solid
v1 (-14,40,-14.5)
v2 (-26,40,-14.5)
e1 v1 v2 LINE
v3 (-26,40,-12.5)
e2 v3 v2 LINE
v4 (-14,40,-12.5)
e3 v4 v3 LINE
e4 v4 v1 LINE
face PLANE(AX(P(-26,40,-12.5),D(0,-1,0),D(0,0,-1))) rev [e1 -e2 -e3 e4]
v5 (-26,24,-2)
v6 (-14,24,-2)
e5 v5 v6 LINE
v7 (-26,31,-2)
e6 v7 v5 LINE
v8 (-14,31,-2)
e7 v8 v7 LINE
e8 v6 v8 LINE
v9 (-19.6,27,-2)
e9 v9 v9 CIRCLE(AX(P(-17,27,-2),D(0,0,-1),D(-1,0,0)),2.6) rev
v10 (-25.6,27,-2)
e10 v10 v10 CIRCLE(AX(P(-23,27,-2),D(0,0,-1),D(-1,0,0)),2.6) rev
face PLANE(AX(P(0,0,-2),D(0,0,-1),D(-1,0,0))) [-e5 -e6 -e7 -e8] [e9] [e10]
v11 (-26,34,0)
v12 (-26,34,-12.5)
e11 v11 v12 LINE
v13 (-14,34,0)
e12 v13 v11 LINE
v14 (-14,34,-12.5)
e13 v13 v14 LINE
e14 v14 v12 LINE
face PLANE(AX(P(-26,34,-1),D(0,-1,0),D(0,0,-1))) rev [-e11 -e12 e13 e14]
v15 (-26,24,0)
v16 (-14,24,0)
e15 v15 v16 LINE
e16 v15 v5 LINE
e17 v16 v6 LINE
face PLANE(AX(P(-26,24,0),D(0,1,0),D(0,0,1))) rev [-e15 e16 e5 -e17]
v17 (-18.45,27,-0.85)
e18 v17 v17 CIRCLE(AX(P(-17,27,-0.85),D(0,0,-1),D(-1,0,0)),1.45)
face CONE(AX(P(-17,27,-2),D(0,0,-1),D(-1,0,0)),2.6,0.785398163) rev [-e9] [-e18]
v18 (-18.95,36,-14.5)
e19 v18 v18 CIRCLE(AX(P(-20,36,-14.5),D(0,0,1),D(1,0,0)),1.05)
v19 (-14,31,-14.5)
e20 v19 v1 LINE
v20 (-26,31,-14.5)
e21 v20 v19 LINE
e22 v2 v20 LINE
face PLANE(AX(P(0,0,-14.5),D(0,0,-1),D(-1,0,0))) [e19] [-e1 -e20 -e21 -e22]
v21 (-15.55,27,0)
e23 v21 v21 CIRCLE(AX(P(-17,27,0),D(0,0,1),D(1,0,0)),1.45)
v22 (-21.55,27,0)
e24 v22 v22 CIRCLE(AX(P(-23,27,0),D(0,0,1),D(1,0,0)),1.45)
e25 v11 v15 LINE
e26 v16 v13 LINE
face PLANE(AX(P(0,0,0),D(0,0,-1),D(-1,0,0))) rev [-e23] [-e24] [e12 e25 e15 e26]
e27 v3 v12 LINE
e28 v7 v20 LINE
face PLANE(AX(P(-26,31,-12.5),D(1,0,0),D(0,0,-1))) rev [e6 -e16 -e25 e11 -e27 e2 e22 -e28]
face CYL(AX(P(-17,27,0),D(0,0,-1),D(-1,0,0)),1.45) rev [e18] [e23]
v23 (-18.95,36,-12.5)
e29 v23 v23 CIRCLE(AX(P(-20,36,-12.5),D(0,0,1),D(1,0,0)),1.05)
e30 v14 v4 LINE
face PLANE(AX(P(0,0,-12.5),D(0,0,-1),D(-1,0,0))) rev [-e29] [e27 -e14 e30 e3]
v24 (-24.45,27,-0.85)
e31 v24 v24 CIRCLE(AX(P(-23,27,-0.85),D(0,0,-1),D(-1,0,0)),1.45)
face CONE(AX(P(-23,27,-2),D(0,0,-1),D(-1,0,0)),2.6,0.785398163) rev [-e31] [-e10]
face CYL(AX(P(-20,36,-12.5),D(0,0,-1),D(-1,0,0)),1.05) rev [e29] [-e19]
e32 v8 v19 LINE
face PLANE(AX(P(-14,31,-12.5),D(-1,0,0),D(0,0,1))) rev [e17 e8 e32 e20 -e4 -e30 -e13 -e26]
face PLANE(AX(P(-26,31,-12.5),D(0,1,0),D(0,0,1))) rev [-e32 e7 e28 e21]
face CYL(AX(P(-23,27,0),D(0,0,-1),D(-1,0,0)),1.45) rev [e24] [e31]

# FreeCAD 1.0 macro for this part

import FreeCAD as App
import Part
import Sketcher

V = App.Vector


def edges_at(feature, points):
    """Names of the edges that pass closest to the given points."""
    edges = feature.Shape.Edges
    near = lambda p: min(range(len(edges)), key=lambda i: edges[i].distToShape(Part.Vertex(*p))[0])
    return sorted({f"Edge{near(p) + 1}" for p in points})

doc = App.newDocument("Part")
body = doc.addObject("PartDesign::Body", "Body")

# Sketch on XY plane
sketch1 = body.newObject("Sketcher::SketchObject", "Sketch")
sketch1.AttachmentSupport = (doc.getObject("XY_Plane"), [""])
sketch1.MapMode = "FlatFace"
sketch1.AttachmentOffset = App.Placement(V(0, 0, -14.5), App.Rotation())
sketch1.addGeometry(Part.LineSegment(V(-26, 40, 0), V(-26, 31, 0)), False)
sketch1.addGeometry(Part.LineSegment(V(-26, 31, 0), V(-14, 31, 0)), False)
sketch1.addGeometry(Part.LineSegment(V(-14, 31, 0), V(-14, 40, 0)), False)
sketch1.addGeometry(Part.LineSegment(V(-14, 40, 0), V(-26, 40, 0)), False)
sketch1.addGeometry(Part.Circle(V(-20, 36, 0), V(0, 0, 1), 1.05), False)
sketch1.addConstraint(Sketcher.Constraint("Coincident", 0, 2, 1, 1))
sketch1.addConstraint(Sketcher.Constraint("Coincident", 1, 2, 2, 1))
sketch1.addConstraint(Sketcher.Constraint("Coincident", 2, 2, 3, 1))
sketch1.addConstraint(Sketcher.Constraint("Coincident", 3, 2, 0, 1))
sketch1.addConstraint(Sketcher.Constraint("Vertical", 0))
sketch1.addConstraint(Sketcher.Constraint("Horizontal", 1))
sketch1.addConstraint(Sketcher.Constraint("Vertical", 2))
sketch1.addConstraint(Sketcher.Constraint("Horizontal", 3))
sketch1.addConstraint(Sketcher.Constraint("Diameter", 4, 2.1))
sketch1.addConstraint(Sketcher.Constraint("DistanceX", 1, 1, 1, 2, 12.0))
sketch1.addConstraint(Sketcher.Constraint("DistanceY", 0, 2, 0, 1, 9.0))
sketch1.addConstraint(Sketcher.Constraint("DistanceX", 4, 3, -1, 1, 20.0))
sketch1.addConstraint(Sketcher.Constraint("DistanceY", -1, 1, 4, 3, 36.0))
sketch1.addConstraint(Sketcher.Constraint("DistanceX", 0, 2, -1, 1, 26.0))
sketch1.addConstraint(Sketcher.Constraint("DistanceY", -1, 1, 0, 2, 31.0))
pad1 = body.newObject("PartDesign::Pad", "Pad")
pad1.Profile = sketch1
pad1.Length = 2

# Sketch on XY plane
sketch2 = body.newObject("Sketcher::SketchObject", "Sketch001")
sketch2.AttachmentSupport = (doc.getObject("XY_Plane"), [""])
sketch2.MapMode = "FlatFace"
sketch2.AttachmentOffset = App.Placement(V(0, 0, -13.5), App.Rotation())
sketch2.addGeometry(Part.LineSegment(V(-26, 34, 0), V(-26, 31, 0)), False)
sketch2.addGeometry(Part.LineSegment(V(-26, 31, 0), V(-14, 31, 0)), False)
sketch2.addGeometry(Part.LineSegment(V(-14, 31, 0), V(-14, 34, 0)), False)
sketch2.addGeometry(Part.LineSegment(V(-14, 34, 0), V(-26, 34, 0)), False)
sketch2.addConstraint(Sketcher.Constraint("Coincident", 0, 2, 1, 1))
sketch2.addConstraint(Sketcher.Constraint("Coincident", 1, 2, 2, 1))
sketch2.addConstraint(Sketcher.Constraint("Coincident", 2, 2, 3, 1))
sketch2.addConstraint(Sketcher.Constraint("Coincident", 3, 2, 0, 1))
sketch2.addConstraint(Sketcher.Constraint("Vertical", 0))
sketch2.addConstraint(Sketcher.Constraint("Horizontal", 1))
sketch2.addConstraint(Sketcher.Constraint("Vertical", 2))
sketch2.addConstraint(Sketcher.Constraint("Horizontal", 3))
sketch2.addConstraint(Sketcher.Constraint("DistanceX", 1, 1, 1, 2, 12.0))
sketch2.addConstraint(Sketcher.Constraint("DistanceY", 0, 2, 0, 1, 3.0))
sketch2.addConstraint(Sketcher.Constraint("DistanceX", 0, 2, -1, 1, 26.0))
sketch2.addConstraint(Sketcher.Constraint("DistanceY", -1, 1, 0, 2, 31.0))
pad2 = body.newObject("PartDesign::Pad", "Pad001")
pad2.Profile = sketch2
pad2.Length = 12.5

# Sketch on XY plane
sketch3 = body.newObject("Sketcher::SketchObject", "Sketch002")
sketch3.AttachmentSupport = (doc.getObject("XY_Plane"), [""])
sketch3.MapMode = "FlatFace"
sketch3.AttachmentOffset = App.Placement(V(0, 0, -2), App.Rotation())
sketch3.addGeometry(Part.LineSegment(V(-26, 34, 0), V(-26, 24, 0)), False)
sketch3.addGeometry(Part.LineSegment(V(-26, 24, 0), V(-14, 24, 0)), False)
sketch3.addGeometry(Part.LineSegment(V(-14, 24, 0), V(-14, 34, 0)), False)
sketch3.addGeometry(Part.LineSegment(V(-14, 34, 0), V(-26, 34, 0)), False)
sketch3.addGeometry(Part.Circle(V(-23, 27, 0), V(0, 0, 1), 1.45), False)
sketch3.addGeometry(Part.Circle(V(-17, 27, 0), V(0, 0, 1), 1.45), False)
sketch3.addConstraint(Sketcher.Constraint("Coincident", 0, 2, 1, 1))
sketch3.addConstraint(Sketcher.Constraint("Coincident", 1, 2, 2, 1))
sketch3.addConstraint(Sketcher.Constraint("Coincident", 2, 2, 3, 1))
sketch3.addConstraint(Sketcher.Constraint("Coincident", 3, 2, 0, 1))
sketch3.addConstraint(Sketcher.Constraint("Vertical", 0))
sketch3.addConstraint(Sketcher.Constraint("Horizontal", 1))
sketch3.addConstraint(Sketcher.Constraint("Vertical", 2))
sketch3.addConstraint(Sketcher.Constraint("Horizontal", 3))
sketch3.addConstraint(Sketcher.Constraint("Equal", 4, 5))
sketch3.addConstraint(Sketcher.Constraint("Horizontal", 4, 3, 5, 3))
sketch3.addConstraint(Sketcher.Constraint("Diameter", 4, 2.9))
sketch3.addConstraint(Sketcher.Constraint("DistanceX", 1, 1, 1, 2, 12.0))
sketch3.addConstraint(Sketcher.Constraint("DistanceY", 0, 2, 0, 1, 10.0))
sketch3.addConstraint(Sketcher.Constraint("DistanceX", 4, 3, -1, 1, 23.0))
sketch3.addConstraint(Sketcher.Constraint("DistanceY", -1, 1, 4, 3, 27.0))
sketch3.addConstraint(Sketcher.Constraint("DistanceX", 5, 3, -1, 1, 17.0))
sketch3.addConstraint(Sketcher.Constraint("DistanceX", 0, 2, -1, 1, 26.0))
sketch3.addConstraint(Sketcher.Constraint("DistanceY", -1, 1, 0, 2, 24.0))
pad3 = body.newObject("PartDesign::Pad", "Pad002")
pad3.Profile = sketch3
pad3.Length = 2
doc.recompute()

chamfer = body.newObject("PartDesign::Chamfer", "Chamfer")
chamfer.Base = (pad3, edges_at(pad3, [(-18.45, 27, -2), (-24.45, 27, -2)]))
chamfer.Size = 1.15

doc.recompute()
